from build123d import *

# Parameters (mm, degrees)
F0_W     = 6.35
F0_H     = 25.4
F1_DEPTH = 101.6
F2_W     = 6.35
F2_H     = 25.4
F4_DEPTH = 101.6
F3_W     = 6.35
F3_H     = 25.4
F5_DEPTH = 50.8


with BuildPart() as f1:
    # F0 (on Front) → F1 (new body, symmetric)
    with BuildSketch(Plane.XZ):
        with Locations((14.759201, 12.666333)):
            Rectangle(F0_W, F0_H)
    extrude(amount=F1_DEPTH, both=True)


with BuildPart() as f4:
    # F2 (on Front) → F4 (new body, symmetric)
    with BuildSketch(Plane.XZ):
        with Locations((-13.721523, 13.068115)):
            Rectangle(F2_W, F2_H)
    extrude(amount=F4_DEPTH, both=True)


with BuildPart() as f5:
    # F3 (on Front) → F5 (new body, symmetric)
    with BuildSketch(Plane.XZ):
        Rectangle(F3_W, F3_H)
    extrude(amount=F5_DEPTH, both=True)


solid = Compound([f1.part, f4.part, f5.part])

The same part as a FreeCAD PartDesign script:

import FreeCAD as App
import Part
import Sketcher
from FreeCAD import Vector
Q = App.Units.Quantity


def add_polygon(sketch, points):
    """Adds a closed chain of lines whose ends are joined by coincident constraints."""
    first, n = sketch.GeometryCount, len(points)
    for a, b in zip(points, points[1:] + points[:1]):
        sketch.addGeometry(Part.LineSegment(App.Vector(*a, 0), App.Vector(*b, 0)), False)
    for i in range(n):
        sketch.addConstraint(Sketcher.Constraint("Coincident", first + i, 2, first + (i + 1) % n, 1))

doc = App.newDocument("Part")
body = doc.addObject("PartDesign::Body", "Body")

# Sketch on XZ plane
sketch1 = doc.addObject("Sketcher::SketchObject", "Sketch")
body.addObject(sketch1)
sketch1.AttachmentSupport = (doc.XZ_Plane, [""])
sketch1.MapMode = "FlatFace"
add_polygon(sketch1, [(12, 25), (12, 0), (18, 0), (18, 25)])  # lines 0-3
sketch1.addConstraint([
    Sketcher.Constraint("Vertical", 0),
    Sketcher.Constraint("Horizontal", 1),
    Sketcher.Constraint("Vertical", 2),
    Sketcher.Constraint("Horizontal", 3),
    Sketcher.Constraint("DistanceY", 0, 2, 0, 1, Q("1 in")),
    Sketcher.Constraint("DistanceX", 1, 1, 1, 2, Q("0.25 in")),
    Sketcher.Constraint("DistanceX", -1, 1, 0, 2, Q("11.584201 mm")),
    Sketcher.Constraint("DistanceY", 0, 2, -1, 1, Q("0.033667 mm")),
])
pad1 = doc.addObject("PartDesign::Pad", "Pad")
body.addObject(pad1)
pad1.Profile = sketch1
pad1.Length = Q("8 in")
pad1.Midplane = True
body2 = doc.addObject("PartDesign::Body", "Body001")

# Sketch on XZ plane
sketch2 = doc.addObject("Sketcher::SketchObject", "Sketch001")
body2.addObject(sketch2)
sketch2.AttachmentSupport = (doc.getObject("XZ_Plane001"), [""])
sketch2.MapMode = "FlatFace"
add_polygon(sketch2, [(-17, 26), (-17, 0), (-11, 0), (-11, 26)])  # lines 0-3
sketch2.addConstraint([
    Sketcher.Constraint("Vertical", 0),
    Sketcher.Constraint("Horizontal", 1),
    Sketcher.Constraint("Vertical", 2),
    Sketcher.Constraint("Horizontal", 3),
    Sketcher.Constraint("DistanceY", 0, 2, 0, 1, Q("1 in")),
    Sketcher.Constraint("DistanceX", 1, 1, 1, 2, Q("0.25 in")),
    Sketcher.Constraint("DistanceX", 0, 2, -1, 1, Q("16.896523 mm")),
    Sketcher.Constraint("DistanceY", -1, 1, 0, 2, Q("0.368115 mm")),
])
pad2 = doc.addObject("PartDesign::Pad", "Pad001")
body2.addObject(pad2)
pad2.Profile = sketch2
pad2.Length = Q("8 in")
pad2.Midplane = True
body3 = doc.addObject("PartDesign::Body", "Body002")

# Sketch on XZ plane
sketch3 = doc.addObject("Sketcher::SketchObject", "Sketch002")
body3.addObject(sketch3)
sketch3.AttachmentSupport = (doc.getObject("XZ_Plane002"), [""])
sketch3.MapMode = "FlatFace"
add_polygon(sketch3, [(-3, 13), (-3, -13), (3, -13), (3, 13)])  # lines 0-3
sketch3.addConstraint([
    Sketcher.Constraint("Vertical", 0),
    Sketcher.Constraint("Horizontal", 1),
    Sketcher.Constraint("Vertical", 2),
    Sketcher.Constraint("Horizontal", 3),
    Sketcher.Constraint("Symmetric", 0, 2, 2, 2, -1, 1),
    Sketcher.Constraint("DistanceY", 0, 2, 0, 1, Q("1 in")),
    Sketcher.Constraint("DistanceX", 1, 1, 1, 2, Q("0.25 in")),
])
pad3 = doc.addObject("PartDesign::Pad", "Pad002")
body3.addObject(pad3)
pad3.Profile = sketch3
pad3.Length = Q("4 in")
pad3.Midplane = True

doc.recompute()
